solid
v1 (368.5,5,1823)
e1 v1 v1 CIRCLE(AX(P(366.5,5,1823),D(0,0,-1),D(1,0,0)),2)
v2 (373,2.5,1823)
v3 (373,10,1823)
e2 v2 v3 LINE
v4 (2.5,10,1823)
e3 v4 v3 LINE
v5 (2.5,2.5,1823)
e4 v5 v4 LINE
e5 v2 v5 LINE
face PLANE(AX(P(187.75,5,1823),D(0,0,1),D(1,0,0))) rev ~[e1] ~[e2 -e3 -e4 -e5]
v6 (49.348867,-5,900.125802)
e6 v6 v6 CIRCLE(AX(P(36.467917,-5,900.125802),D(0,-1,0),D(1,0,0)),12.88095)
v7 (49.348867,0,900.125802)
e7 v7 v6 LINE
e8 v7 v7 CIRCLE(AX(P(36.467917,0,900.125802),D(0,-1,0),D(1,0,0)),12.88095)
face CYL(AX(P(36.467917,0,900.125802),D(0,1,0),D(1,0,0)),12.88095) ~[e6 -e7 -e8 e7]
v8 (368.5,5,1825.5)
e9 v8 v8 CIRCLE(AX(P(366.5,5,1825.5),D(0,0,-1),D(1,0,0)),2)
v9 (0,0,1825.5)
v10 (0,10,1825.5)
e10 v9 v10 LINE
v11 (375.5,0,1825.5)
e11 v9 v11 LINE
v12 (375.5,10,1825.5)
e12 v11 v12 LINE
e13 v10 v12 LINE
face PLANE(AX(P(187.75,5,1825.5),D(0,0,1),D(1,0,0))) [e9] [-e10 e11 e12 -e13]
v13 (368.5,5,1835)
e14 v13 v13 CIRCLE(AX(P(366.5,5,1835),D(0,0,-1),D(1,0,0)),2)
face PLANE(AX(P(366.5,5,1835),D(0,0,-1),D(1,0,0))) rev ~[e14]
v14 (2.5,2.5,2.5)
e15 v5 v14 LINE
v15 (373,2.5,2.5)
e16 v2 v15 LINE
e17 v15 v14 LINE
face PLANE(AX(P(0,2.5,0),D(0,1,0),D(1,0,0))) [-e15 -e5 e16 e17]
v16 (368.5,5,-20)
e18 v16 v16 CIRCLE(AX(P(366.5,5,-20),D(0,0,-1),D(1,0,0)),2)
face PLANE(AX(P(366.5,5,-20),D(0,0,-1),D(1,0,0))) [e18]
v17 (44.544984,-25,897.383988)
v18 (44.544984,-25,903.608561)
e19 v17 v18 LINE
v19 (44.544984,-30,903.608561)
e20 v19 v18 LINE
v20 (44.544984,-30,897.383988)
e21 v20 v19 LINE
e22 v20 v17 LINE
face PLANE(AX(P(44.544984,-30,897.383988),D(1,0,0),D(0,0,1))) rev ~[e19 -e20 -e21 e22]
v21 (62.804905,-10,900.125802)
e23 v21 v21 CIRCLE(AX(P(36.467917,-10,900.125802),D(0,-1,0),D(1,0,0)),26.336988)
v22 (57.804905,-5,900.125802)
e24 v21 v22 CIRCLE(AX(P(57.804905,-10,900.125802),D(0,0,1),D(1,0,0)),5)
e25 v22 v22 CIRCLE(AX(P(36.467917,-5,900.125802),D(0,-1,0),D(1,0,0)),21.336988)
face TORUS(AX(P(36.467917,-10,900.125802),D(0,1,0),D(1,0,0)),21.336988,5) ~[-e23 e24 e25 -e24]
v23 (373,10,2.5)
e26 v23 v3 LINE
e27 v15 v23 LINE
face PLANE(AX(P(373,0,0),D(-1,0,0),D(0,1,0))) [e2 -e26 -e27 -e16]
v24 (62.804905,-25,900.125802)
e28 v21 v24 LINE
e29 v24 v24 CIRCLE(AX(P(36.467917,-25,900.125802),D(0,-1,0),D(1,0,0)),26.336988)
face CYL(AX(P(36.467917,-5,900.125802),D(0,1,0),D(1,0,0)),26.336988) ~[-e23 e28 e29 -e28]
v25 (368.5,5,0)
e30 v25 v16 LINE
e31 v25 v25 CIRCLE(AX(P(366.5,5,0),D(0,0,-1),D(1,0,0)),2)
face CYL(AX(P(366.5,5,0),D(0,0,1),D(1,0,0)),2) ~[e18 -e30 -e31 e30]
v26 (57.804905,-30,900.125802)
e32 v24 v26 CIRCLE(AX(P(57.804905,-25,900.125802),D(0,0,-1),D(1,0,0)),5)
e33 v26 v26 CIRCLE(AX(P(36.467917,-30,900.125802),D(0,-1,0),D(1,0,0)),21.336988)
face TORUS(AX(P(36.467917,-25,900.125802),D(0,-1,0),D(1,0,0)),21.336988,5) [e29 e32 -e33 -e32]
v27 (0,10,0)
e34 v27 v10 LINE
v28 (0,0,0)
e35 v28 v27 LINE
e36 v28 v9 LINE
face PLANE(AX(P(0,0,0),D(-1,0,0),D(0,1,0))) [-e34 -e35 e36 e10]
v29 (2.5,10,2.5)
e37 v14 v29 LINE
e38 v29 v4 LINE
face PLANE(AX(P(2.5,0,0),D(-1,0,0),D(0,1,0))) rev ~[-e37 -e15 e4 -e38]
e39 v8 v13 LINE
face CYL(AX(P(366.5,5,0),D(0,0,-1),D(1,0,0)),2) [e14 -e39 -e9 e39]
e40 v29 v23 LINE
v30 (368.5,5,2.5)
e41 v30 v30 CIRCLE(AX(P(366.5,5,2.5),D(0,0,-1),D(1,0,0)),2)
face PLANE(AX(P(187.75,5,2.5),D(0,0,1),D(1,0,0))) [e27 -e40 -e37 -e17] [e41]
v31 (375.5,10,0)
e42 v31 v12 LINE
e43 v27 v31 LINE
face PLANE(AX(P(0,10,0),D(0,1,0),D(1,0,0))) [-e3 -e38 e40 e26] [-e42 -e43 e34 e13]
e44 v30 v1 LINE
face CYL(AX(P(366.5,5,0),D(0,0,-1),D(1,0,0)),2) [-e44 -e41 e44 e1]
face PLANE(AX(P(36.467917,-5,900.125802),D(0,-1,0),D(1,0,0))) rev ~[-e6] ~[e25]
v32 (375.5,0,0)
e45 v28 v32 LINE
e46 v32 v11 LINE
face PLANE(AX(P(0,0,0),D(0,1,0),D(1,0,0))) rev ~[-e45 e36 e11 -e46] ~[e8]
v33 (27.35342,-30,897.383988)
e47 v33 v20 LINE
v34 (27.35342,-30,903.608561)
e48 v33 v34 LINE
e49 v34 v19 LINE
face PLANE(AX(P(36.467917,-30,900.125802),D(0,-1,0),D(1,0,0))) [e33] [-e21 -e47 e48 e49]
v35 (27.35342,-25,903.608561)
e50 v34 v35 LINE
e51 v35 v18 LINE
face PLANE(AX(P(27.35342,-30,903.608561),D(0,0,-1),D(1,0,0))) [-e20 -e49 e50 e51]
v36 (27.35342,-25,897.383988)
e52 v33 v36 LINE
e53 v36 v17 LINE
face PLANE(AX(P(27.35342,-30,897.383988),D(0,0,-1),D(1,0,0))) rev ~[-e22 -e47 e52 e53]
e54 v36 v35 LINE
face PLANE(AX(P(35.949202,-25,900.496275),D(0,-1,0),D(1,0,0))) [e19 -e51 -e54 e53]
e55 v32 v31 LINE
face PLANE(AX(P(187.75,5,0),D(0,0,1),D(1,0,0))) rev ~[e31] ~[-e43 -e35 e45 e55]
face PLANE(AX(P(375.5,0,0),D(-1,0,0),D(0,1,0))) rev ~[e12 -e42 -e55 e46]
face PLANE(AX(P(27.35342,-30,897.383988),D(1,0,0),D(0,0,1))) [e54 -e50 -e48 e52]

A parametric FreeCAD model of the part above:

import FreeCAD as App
import Part
import Sketcher

V = App.Vector
Q = App.Units.Quantity


def edges_at(feature, points):
    """Names of the edges that pass closest to the given points."""
    edges = feature.Shape.Edges
    near = lambda p: min(range(len(edges)), key=lambda i: edges[i].distToShape(Part.Vertex(*p))[0])
    return sorted({f"Edge{near(p) + 1}" for p in points})


def faces_at(feature, points):
    """Names of the faces that lie closest to the given points."""
    faces = feature.Shape.Faces
    near = lambda p: min(range(len(faces)), key=lambda i: faces[i].distToShape(Part.Vertex(*p))[0])
    return sorted({f"Face{near(p) + 1}" for p in points})


def add_polygon(sketch, points):
    """Adds a closed chain of lines whose ends are joined by coincident constraints."""
    first, n = sketch.GeometryCount, len(points)
    for a, b in zip(points, points[1:] + points[:1]):
        sketch.addGeometry(Part.LineSegment(App.Vector(*a, 0), App.Vector(*b, 0)), False)
    for i in range(n):
        sketch.addConstraint(Sketcher.Constraint("Coincident", first + i, 2, first + (i + 1) % n, 1))

doc = App.newDocument("Part")
params = doc.addObject("Spreadsheet::Sheet", "Params")
for row, (alias, value) in enumerate([
    ("sketch1_height", "10 mm"),
    ("sketch1_width", "375.5 mm"),
    ("pad1_length", "1825.5 mm"),
    ("thickness_wall", "2.5 mm"),
    ("sketch2_diameter", "4 mm"),
    ("pad2_length", "20 mm"),
    ("pad2_length2", "1835 mm"),
    ("pad3_length", "5 mm"),
    ("pad4_length", "25 mm"),
    ("fillet_radius", "5 mm"),
    ("pocket1_length", "5 mm"),
], start=1):
    params.set(f"A{row}", alias)
    params.set(f"B{row}", "=" + value)
    params.setAlias(f"B{row}", alias)

body = doc.addObject("PartDesign::Body", "Body")

# Sketch on XY plane
sketch1 = doc.addObject("Sketcher::SketchObject", "Sketch")
body.addObject(sketch1)
sketch1.AttachmentSupport = (doc.XY_Plane, [""])
sketch1.MapMode = "FlatFace"
add_polygon(sketch1, [(0, 10), (0, 0), (376, 0), (376, 10)])  # lines 0-3
sketch1.addConstraint([
    Sketcher.Constraint("Vertical", 0),
    Sketcher.Constraint("Horizontal", 1),
    Sketcher.Constraint("Vertical", 2),
    Sketcher.Constraint("Horizontal", 3),
    Sketcher.Constraint("Coincident", 0, 2, -1, 1),
    Sketcher.Constraint("DistanceY", 0, 2, 0, 1, Q("10 mm")),
    Sketcher.Constraint("DistanceX", 1, 1, 1, 2, Q("375.5 mm")),
])
sketch1.setExpression("Constraints[9]", "Params.sketch1_height")
sketch1.setExpression("Constraints[10]", "Params.sketch1_width")
pad1 = doc.addObject("PartDesign::Pad", "Pad")
body.addObject(pad1)
pad1.Profile = sketch1
pad1.setExpression("Length", "Params.pad1_length")
doc.recompute()

thickness = doc.addObject("PartDesign::Thickness", "Thickness")
body.addObject(thickness)
thickness.Base = (pad1, faces_at(pad1, [(187.75, 10, 912.75)]))
thickness.setExpression("Value", "Params.thickness_wall")
thickness.Reversed = True
thickness.Join = "Arc"

# Sketch on XY plane
sketch2 = doc.addObject("Sketcher::SketchObject", "Sketch001")
body.addObject(sketch2)
sketch2.AttachmentSupport = (doc.XY_Plane, [""])
sketch2.MapMode = "FlatFace"
sketch2.addGeometry(Part.Circle(V(366.5, 5, 0), V(0, 0, 1), 2), False)
sketch2.addConstraint([
    Sketcher.Constraint("Diameter", 0, Q("4 mm")),
    Sketcher.Constraint("DistanceY", -1, 1, 0, 3, Q("5 mm")),
    Sketcher.Constraint("DistanceX", -1, 1, 0, 3, Q("366.5 mm")),
])
sketch2.setExpression("Constraints[0]", "Params.sketch2_diameter")
pad2 = doc.addObject("PartDesign::Pad", "Pad001")
body.addObject(pad2)
pad2.Profile = sketch2
pad2.Type = "TwoLengths"
pad2.setExpression("Length", "Params.pad2_length")
pad2.setExpression("Length2", "Params.pad2_length2")
pad2.Reversed = True

# Sketch on XZ plane
sketch3 = doc.addObject("Sketcher::SketchObject", "Sketch002")
body.addObject(sketch3)
sketch3.AttachmentSupport = (doc.XZ_Plane, [""])
sketch3.MapMode = "FlatFace"
sketch3.addGeometry(Part.Circle(V(36, 900, 0), V(0, 0, 1), 13), False)
sketch3.addConstraint([
    Sketcher.Constraint("Diameter", 0, Q("25.7619 mm")),
    Sketcher.Constraint("DistanceY", -1, 1, 0, 3, Q("900.125802 mm")),
    Sketcher.Constraint("DistanceX", -1, 1, 0, 3, Q("36.467917 mm")),
])
pad3 = doc.addObject("PartDesign::Pad", "Pad002")
body.addObject(pad3)
pad3.Profile = sketch3
pad3.setExpression("Length", "Params.pad3_length")

# Sketch on XZ plane
sketch4 = doc.addObject("Sketcher::SketchObject", "Sketch003")
body.addObject(sketch4)
sketch4.AttachmentSupport = (doc.XZ_Plane, [""])
sketch4.MapMode = "FlatFace"
sketch4.AttachmentOffset = App.Placement(V(0, 0, 5), App.Rotation())
sketch4.addGeometry(Part.Circle(V(36, 900, 0), V(0, 0, 1), 26), False)
sketch4.addConstraint([
    Sketcher.Constraint("Diameter", 0, Q("52.673976 mm")),
    Sketcher.Constraint("DistanceY", -1, 1, 0, 3, Q("900.125802 mm")),
    Sketcher.Constraint("DistanceX", -1, 1, 0, 3, Q("36.467917 mm")),
])
pad4 = doc.addObject("PartDesign::Pad", "Pad003")
body.addObject(pad4)
pad4.Profile = sketch4
pad4.setExpression("Length", "Params.pad4_length")
doc.recompute()

fillet = doc.addObject("PartDesign::Fillet", "Fillet")
body.addObject(fillet)
fillet.Base = (pad4, edges_at(pad4, [(10.131, -30, 900.126), (10.131, -5, 900.126)]))
fillet.setExpression("Radius", "Params.fillet_radius")

# Sketch on XZ plane
sketch5 = doc.addObject("Sketcher::SketchObject", "Sketch004")
body.addObject(sketch5)
sketch5.AttachmentSupport = (doc.XZ_Plane, [""])
sketch5.MapMode = "FlatFace"
sketch5.AttachmentOffset = App.Placement(V(0, 0, 30), App.Rotation())
add_polygon(sketch5, [(27, 904), (27, 897), (45, 897), (45, 904)])  # lines 0-3
sketch5.addConstraint([
    Sketcher.Constraint("Vertical", 0),
    Sketcher.Constraint("Horizontal", 1),
    Sketcher.Constraint("Vertical", 2),
    Sketcher.Constraint("Horizontal", 3),
    Sketcher.Constraint("DistanceX", 1, 1, 1, 2, Q("17.191563 mm")),
    Sketcher.Constraint("DistanceY", 0, 2, 0, 1, Q("6.224573 mm")),
    Sketcher.Constraint("DistanceX", -1, 1, 0, 2, Q("27.35342 mm")),
    Sketcher.Constraint("DistanceY", -1, 1, 0, 2, Q("897.383988 mm")),
])
pocket1 = doc.addObject("PartDesign::Pocket", "Pocket")
body.addObject(pocket1)
pocket1.Profile = sketch5
pocket1.setExpression("Length", "Params.pocket1_length")

doc.recompute()
